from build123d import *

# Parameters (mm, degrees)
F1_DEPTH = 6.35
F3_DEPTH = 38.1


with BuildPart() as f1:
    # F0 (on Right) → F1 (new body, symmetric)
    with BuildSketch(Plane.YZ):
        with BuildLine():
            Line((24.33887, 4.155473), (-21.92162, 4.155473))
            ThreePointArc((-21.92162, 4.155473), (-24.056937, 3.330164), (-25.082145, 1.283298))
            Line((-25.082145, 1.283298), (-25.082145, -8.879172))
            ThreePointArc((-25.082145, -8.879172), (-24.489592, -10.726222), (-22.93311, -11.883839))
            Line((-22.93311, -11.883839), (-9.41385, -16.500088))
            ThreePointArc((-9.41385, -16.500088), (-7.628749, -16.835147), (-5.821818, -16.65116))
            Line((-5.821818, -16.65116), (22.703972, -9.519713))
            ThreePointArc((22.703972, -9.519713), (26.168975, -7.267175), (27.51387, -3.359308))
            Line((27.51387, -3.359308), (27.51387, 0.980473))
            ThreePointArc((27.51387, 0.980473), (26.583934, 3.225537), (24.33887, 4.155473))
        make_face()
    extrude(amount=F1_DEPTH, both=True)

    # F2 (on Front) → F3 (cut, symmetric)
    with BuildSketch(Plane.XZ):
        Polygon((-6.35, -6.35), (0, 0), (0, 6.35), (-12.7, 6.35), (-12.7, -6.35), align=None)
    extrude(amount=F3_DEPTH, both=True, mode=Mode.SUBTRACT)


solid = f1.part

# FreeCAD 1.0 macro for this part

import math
import FreeCAD as App
import Part
import Sketcher
Q = App.Units.Quantity

doc = App.newDocument("Part")
body = doc.addObject("PartDesign::Body", "Body")

sketch1 = body.newObject("Sketcher::SketchObject", "Sketch")
sketch1.AttachmentSupport = (doc.getObject("YZ_Plane"), [""])
sketch1.MapMode = "FlatFace"
sketch1.addGeometry([
    Part.LineSegment(App.Vector(24.33887, 4.155473, 0), App.Vector(-21.92162, 4.155473, 0)),
    Part.ArcOfCircle(Part.Circle(App.Vector(-21.921621, 0.980475, 0), App.Vector(0, 0, 1), 3.174998), math.radians(89.999981), math.radians(174.526956)),
    Part.LineSegment(App.Vector(-25.082145, 1.283298, 0), App.Vector(-25.082145, -8.879172, 0)),
    Part.ArcOfCircle(Part.Circle(App.Vector(-21.907145, -8.879172, 0), App.Vector(0, 0, 1), 3.175), math.radians(179.999997), math.radians(251.147155)),
    Part.LineSegment(App.Vector(-22.93311, -11.883839, 0), App.Vector(-9.41385, -16.500088, 0)),
    Part.ArcOfCircle(Part.Circle(App.Vector(-7.36192, -10.490766, 0), App.Vector(0, 0, 1), 6.34999), math.radians(-108.852873), math.radians(-75.963727)),
    Part.LineSegment(App.Vector(-5.821818, -16.65116, 0), App.Vector(22.703972, -9.519713, 0)),
    Part.ArcOfCircle(Part.Circle(App.Vector(21.163869, -3.359308, 0), App.Vector(0, 0, 1), 6.350001), math.radians(-75.963745), math.radians(-0.000001)),
    Part.LineSegment(App.Vector(27.51387, -3.359308, 0), App.Vector(27.51387, 0.980473, 0)),
    Part.ArcOfCircle(Part.Circle(App.Vector(24.33887, 0.980473, 0), App.Vector(0, 0, 1), 3.175), math.radians(0.000002), math.radians(89.999998)),
], False)
sketch1.addConstraint([
    Sketcher.Constraint("Coincident", 0, 2, 1, 1),
    Sketcher.Constraint("Coincident", 1, 2, 2, 1),
    Sketcher.Constraint("Coincident", 2, 2, 3, 1),
    Sketcher.Constraint("Coincident", 3, 2, 4, 1),
    Sketcher.Constraint("Coincident", 4, 2, 5, 1),
    Sketcher.Constraint("Coincident", 5, 2, 6, 1),
    Sketcher.Constraint("Coincident", 6, 2, 7, 1),
    Sketcher.Constraint("Coincident", 7, 2, 8, 1),
    Sketcher.Constraint("Coincident", 8, 2, 9, 1),
    Sketcher.Constraint("Coincident", 9, 2, 0, 1),
    Sketcher.Constraint("Horizontal", 0),
    Sketcher.Constraint("Vertical", 2),
    Sketcher.Constraint("Vertical", 8),
    Sketcher.Constraint("Radius", 7, Q("0.25 in")),
    Sketcher.Constraint("Radius", 1, Q("0.1249999 in")),
    Sketcher.Constraint("Radius", 3, Q("0.125 in")),
    Sketcher.Constraint("Radius", 9, Q("0.125 in")),
    Sketcher.Constraint("Radius", 5, 6.34999),
    Sketcher.Constraint("DistanceX", 9, 2, 8, 2, Q("0.125 in")),
    Sketcher.Constraint("DistanceY", 8, 2, 9, 2, Q("0.125 in")),
    Sketcher.Constraint("DistanceX", 0, 2, 0, 1, 46.26049),
    Sketcher.Constraint("DistanceY", 2, 2, 2, 1, 10.16247),
    Sketcher.Constraint("DistanceY", 8, 1, 8, 2, 4.339781),
    Sketcher.Constraint("DistanceY", -1, 1, 1, 2, 1.283298),
    Sketcher.Constraint("DistanceX", 1, 3, 5, 3, 14.559701),
    Sketcher.Constraint("DistanceX", 0, 2, 5, 3, 14.5597),
    Sketcher.Constraint("DistanceX", 5, 3, 5, 2, 1.540102),
    Sketcher.Constraint("DistanceX", 6, 2, 8, 2, 4.809898),
    Sketcher.Constraint("Distance", 6, 29.403711),
    Sketcher.Constraint("DistanceX", 1, 3, -1, 1, 21.921621),
    Sketcher.Constraint("DistanceX", 3, 2, -1, 1, 22.93311),
    Sketcher.Constraint("DistanceY", 3, 2, -1, 1, 11.883839),
    Sketcher.Constraint("DistanceX", 4, 2, -1, 1, 9.41385),
    Sketcher.Constraint("DistanceY", 4, 2, -1, 1, 16.500088),
    Sketcher.Constraint("DistanceY", 7, 2, -1, 1, 3.359308),
])
pad1 = body.newObject("PartDesign::Pad", "Pad")
pad1.Profile = sketch1
pad1.Length = Q("0.5 in")
pad1.Midplane = True

sketch2 = body.newObject("Sketcher::SketchObject", "Sketch001")
sketch2.AttachmentSupport = (doc.getObject("XZ_Plane"), [""])
sketch2.MapMode = "FlatFace"
sketch2.addGeometry([
    Part.LineSegment(App.Vector(-6, -6, 0), App.Vector(0, 0, 0)),
    Part.LineSegment(App.Vector(0, 0, 0), App.Vector(0, 6, 0)),
    Part.LineSegment(App.Vector(0, 6, 0), App.Vector(-13, 6, 0)),
    Part.LineSegment(App.Vector(-13, 6, 0), App.Vector(-13, -6, 0)),
    Part.LineSegment(App.Vector(-13, -6, 0), App.Vector(-6, -6, 0)),
], False)
sketch2.addConstraint([
    Sketcher.Constraint("Coincident", 0, 2, 1, 1),
    Sketcher.Constraint("Coincident", 1, 2, 2, 1),
    Sketcher.Constraint("Coincident", 2, 2, 3, 1),
    Sketcher.Constraint("Coincident", 3, 2, 4, 1),
    Sketcher.Constraint("Coincident", 4, 2, 0, 1),
    Sketcher.Constraint("Vertical", 1),
    Sketcher.Constraint("Horizontal", 2),
    Sketcher.Constraint("Vertical", 3),
    Sketcher.Constraint("Horizontal", 4),
    Sketcher.Constraint("Coincident", 0, 2, -1, 1),
    Sketcher.Constraint("Equal", 4, 1),
    Sketcher.Constraint("Equal", 2, 3),
    Sketcher.Constraint("DistanceX", 2, 2, 2, 1, Q("0.5 in")),
    Sketcher.Constraint("DistanceX", 4, 1, 4, 2, Q("0.25 in")),
])
pocket1 = body.newObject("PartDesign::Pocket", "Pocket")
pocket1.Profile = sketch2
pocket1.Length = Q("3 in")
pocket1.Midplane = True

doc.recompute()
